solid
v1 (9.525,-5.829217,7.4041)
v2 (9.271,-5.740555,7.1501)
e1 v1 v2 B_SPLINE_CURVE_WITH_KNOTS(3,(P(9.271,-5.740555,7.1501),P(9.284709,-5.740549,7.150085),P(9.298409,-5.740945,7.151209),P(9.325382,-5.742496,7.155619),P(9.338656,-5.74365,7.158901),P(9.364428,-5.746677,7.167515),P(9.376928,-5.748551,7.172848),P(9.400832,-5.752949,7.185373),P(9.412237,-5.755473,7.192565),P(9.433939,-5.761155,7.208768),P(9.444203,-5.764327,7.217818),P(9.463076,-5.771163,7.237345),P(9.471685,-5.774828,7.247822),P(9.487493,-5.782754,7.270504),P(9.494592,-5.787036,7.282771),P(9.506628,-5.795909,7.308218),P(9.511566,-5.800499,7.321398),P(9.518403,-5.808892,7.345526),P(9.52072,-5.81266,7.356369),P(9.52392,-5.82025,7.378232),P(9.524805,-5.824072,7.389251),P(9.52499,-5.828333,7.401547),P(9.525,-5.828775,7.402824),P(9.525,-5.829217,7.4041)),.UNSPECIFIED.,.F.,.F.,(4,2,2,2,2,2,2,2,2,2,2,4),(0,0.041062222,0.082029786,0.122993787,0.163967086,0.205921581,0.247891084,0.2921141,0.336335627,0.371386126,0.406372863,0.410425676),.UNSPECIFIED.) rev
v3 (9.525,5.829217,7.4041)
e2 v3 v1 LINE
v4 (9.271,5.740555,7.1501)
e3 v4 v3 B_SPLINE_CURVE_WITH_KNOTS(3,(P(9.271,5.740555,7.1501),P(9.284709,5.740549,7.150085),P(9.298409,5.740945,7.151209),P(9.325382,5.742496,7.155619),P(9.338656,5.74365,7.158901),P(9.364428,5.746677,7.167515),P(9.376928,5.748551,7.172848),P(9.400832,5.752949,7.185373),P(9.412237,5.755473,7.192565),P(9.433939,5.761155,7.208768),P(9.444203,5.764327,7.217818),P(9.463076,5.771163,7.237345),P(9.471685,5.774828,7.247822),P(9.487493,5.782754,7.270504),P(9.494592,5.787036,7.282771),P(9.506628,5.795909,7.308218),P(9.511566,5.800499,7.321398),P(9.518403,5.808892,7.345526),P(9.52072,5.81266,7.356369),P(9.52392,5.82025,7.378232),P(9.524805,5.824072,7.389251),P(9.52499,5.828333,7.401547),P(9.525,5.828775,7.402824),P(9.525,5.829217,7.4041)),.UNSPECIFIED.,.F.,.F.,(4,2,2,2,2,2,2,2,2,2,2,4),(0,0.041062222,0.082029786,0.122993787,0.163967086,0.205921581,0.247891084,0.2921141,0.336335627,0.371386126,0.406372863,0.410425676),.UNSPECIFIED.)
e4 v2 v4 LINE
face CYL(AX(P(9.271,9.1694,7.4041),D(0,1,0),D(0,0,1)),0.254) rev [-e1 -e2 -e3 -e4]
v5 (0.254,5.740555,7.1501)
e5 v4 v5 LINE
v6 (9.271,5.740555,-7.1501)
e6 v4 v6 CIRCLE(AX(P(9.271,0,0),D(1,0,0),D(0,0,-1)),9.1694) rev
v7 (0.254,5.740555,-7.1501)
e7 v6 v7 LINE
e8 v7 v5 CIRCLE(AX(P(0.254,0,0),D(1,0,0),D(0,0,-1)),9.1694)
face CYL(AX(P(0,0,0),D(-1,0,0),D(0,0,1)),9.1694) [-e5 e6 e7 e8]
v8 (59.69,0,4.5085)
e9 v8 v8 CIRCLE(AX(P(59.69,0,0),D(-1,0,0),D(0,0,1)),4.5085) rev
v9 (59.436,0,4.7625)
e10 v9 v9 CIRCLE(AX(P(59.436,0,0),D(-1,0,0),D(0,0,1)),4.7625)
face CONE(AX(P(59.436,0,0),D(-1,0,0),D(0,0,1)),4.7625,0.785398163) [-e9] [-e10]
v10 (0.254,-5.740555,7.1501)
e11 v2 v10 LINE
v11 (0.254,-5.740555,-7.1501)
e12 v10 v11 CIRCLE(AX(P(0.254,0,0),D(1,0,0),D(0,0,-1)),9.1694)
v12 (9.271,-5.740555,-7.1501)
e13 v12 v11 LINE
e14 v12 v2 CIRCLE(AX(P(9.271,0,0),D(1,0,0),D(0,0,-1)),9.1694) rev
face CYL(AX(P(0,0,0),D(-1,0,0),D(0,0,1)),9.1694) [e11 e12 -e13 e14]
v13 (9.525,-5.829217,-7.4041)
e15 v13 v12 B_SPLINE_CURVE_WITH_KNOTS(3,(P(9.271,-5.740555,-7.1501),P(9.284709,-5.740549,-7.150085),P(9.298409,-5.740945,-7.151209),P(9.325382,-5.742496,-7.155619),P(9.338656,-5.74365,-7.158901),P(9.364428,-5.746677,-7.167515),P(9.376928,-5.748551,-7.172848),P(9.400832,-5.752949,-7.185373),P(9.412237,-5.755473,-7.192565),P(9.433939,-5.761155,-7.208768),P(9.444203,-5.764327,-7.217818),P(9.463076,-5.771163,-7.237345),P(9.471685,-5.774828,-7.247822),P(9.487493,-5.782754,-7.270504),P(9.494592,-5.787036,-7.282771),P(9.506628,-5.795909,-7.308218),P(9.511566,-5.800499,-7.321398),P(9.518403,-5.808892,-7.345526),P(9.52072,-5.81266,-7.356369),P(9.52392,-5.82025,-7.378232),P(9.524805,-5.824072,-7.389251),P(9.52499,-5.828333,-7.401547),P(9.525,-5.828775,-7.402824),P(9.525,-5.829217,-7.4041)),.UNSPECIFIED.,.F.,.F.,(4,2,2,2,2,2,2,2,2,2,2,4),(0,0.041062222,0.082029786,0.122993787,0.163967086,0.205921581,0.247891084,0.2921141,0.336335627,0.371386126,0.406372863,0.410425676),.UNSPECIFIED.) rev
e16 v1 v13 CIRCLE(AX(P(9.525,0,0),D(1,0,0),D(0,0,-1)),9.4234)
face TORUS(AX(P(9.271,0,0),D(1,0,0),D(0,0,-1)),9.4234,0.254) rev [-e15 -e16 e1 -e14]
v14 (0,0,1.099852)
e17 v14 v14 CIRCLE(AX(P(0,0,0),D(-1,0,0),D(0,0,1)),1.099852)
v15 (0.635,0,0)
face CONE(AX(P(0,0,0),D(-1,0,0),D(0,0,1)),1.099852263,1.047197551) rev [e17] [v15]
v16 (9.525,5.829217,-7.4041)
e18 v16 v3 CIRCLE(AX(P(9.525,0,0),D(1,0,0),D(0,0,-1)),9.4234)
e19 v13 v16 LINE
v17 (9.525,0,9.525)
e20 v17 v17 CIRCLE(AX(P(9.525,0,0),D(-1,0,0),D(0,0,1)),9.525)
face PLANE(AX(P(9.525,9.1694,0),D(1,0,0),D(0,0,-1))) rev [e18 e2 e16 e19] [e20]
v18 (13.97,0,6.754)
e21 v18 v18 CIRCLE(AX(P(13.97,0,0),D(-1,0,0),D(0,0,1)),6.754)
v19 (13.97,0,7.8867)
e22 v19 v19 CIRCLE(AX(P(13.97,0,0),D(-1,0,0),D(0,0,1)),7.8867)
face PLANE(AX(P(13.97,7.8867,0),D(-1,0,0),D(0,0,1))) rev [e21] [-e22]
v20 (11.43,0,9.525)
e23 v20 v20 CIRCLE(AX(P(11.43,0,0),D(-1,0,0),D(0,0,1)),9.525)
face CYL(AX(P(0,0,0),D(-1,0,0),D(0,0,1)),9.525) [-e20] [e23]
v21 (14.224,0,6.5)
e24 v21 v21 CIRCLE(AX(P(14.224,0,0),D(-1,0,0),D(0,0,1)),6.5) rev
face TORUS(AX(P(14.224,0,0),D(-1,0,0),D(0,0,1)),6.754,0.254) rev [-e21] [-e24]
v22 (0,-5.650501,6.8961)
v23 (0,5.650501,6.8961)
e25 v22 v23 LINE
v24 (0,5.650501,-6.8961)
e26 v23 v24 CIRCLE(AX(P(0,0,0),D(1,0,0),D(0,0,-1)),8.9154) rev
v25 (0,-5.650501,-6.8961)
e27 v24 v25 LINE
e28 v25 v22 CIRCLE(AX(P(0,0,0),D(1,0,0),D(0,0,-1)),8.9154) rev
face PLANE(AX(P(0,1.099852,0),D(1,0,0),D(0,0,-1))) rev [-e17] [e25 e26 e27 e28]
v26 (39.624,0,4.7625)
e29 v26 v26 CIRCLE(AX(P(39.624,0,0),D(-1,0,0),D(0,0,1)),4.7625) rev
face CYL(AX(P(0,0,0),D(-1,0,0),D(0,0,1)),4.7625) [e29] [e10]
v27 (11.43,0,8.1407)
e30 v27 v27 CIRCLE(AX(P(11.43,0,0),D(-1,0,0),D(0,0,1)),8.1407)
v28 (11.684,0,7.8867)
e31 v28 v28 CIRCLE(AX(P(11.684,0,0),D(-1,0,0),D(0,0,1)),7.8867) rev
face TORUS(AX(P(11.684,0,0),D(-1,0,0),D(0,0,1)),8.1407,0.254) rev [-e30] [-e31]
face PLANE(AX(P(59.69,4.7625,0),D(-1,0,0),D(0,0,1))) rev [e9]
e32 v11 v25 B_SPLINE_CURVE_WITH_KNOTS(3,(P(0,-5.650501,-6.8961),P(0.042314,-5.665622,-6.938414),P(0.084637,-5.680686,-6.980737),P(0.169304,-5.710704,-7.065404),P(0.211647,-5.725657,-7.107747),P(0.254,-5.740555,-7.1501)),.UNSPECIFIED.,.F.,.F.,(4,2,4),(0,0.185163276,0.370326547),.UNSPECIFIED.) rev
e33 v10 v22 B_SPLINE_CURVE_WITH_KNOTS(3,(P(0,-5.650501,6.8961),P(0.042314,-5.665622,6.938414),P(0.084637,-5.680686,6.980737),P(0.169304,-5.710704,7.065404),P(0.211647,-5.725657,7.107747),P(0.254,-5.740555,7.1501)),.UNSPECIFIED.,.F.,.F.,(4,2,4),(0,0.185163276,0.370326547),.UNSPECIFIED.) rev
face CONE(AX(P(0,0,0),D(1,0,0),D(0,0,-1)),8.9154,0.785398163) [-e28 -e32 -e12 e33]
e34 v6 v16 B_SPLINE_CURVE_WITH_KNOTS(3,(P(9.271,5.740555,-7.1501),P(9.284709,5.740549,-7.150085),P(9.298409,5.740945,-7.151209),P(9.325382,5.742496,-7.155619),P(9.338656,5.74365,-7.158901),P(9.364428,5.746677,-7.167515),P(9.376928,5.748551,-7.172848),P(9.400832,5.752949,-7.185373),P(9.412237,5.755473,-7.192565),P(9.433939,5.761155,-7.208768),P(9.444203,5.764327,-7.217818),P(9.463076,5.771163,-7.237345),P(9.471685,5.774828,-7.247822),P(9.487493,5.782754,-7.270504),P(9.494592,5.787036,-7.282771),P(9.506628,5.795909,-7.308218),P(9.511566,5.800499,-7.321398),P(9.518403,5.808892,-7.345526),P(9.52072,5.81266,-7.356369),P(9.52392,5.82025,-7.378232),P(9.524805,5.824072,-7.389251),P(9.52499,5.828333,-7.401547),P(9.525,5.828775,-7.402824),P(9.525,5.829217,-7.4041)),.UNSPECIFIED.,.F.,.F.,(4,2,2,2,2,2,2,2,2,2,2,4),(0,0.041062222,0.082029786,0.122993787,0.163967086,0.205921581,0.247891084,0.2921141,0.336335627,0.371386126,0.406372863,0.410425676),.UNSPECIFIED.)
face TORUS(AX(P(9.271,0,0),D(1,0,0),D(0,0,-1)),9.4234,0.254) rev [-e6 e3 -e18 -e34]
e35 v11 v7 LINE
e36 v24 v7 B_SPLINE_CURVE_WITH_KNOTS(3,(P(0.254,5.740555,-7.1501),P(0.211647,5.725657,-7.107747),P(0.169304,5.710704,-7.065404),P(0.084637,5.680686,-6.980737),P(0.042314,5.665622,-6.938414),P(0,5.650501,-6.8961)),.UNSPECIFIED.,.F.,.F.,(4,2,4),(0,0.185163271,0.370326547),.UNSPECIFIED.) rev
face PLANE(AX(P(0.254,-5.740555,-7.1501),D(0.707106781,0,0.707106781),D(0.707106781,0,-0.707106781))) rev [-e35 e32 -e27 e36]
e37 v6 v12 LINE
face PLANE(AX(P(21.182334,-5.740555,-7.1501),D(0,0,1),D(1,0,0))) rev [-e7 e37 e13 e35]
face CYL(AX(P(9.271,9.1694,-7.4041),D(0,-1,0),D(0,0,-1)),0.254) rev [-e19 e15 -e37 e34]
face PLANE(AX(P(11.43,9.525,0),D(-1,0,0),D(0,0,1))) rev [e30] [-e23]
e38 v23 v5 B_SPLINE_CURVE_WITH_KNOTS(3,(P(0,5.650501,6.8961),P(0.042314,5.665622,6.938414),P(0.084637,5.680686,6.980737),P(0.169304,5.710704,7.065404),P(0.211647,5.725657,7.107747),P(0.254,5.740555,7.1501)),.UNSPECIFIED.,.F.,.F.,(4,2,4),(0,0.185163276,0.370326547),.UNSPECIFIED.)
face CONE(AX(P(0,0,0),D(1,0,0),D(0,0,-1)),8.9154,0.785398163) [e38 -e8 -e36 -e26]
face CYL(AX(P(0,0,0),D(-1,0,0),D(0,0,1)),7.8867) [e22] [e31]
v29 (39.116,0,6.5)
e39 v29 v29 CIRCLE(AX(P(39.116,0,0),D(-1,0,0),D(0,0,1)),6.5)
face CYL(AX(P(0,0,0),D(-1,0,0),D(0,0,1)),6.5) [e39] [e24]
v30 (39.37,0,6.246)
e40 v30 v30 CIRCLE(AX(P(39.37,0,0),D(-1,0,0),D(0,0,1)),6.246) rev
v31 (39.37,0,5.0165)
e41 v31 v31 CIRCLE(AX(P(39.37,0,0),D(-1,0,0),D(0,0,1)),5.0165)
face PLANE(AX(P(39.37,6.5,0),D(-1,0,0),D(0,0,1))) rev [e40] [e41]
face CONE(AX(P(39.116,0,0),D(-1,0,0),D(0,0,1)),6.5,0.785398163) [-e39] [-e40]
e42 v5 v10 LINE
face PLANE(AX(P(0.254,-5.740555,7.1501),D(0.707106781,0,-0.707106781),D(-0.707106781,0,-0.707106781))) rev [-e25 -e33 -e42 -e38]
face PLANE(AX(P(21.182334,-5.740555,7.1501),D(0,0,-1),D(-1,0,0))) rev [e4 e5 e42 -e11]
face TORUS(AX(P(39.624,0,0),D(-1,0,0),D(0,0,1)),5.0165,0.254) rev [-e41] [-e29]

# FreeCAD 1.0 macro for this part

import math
import FreeCAD as App
import Part
import Sketcher

V = App.Vector
Q = App.Units.Quantity


def edges_at(feature, points):
    """Names of the edges that pass closest to the given points."""
    edges = feature.Shape.Edges
    near = lambda p: min(range(len(edges)), key=lambda i: edges[i].distToShape(Part.Vertex(*p))[0])
    return sorted({f"Edge{near(p) + 1}" for p in points})


def add_polygon(sketch, points):
    """Adds a closed chain of lines whose ends are joined by coincident constraints."""
    first, n = sketch.GeometryCount, len(points)
    for a, b in zip(points, points[1:] + points[:1]):
        sketch.addGeometry(Part.LineSegment(App.Vector(*a, 0), App.Vector(*b, 0)), False)
    for i in range(n):
        sketch.addConstraint(Sketcher.Constraint("Coincident", first + i, 2, first + (i + 1) % n, 1))

doc = App.newDocument("Part")
body = doc.addObject("PartDesign::Body", "Body")

sketch1 = doc.addObject("Sketcher::SketchObject", "Sketch")
body.addObject(sketch1)
sketch1.AttachmentSupport = (doc.XY_Plane, [""])
sketch1.MapMode = "FlatFace"
add_polygon(sketch1, [(9.53, 9.17), (0, 9.17), (0, 1.1), (0.64, 0), (59.69, 0), (59.69, 4.76), (39.37, 4.76), (39.37, 6.5), (13.97, 6.5), (13.97, 7.89), (11.43, 7.89), (11.43, 9.53), (9.53, 9.53)])
sketch1.addConstraint([
    Sketcher.Constraint("Horizontal", 0),
    Sketcher.Constraint("Vertical", 1),
    Sketcher.Constraint("Horizontal", 3),
    Sketcher.Constraint("Vertical", 4),
    Sketcher.Constraint("Horizontal", 5),
    Sketcher.Constraint("Vertical", 6),
    Sketcher.Constraint("Horizontal", 7),
    Sketcher.Constraint("Vertical", 8),
    Sketcher.Constraint("Horizontal", 9),
    Sketcher.Constraint("Vertical", 10),
    Sketcher.Constraint("Horizontal", 11),
    Sketcher.Constraint("Vertical", 12),
    Sketcher.Constraint("PointOnObject", 0, 2, -2),
    Sketcher.Constraint("PointOnObject", 2, 2, -1),
    Sketcher.Constraint("DistanceX", 7, 2, 7, 1, Q("1 in")),
    Sketcher.Constraint("DistanceX", 5, 2, 5, 1, Q("0.8 in")),
    Sketcher.Constraint("DistanceX", 9, 2, 9, 1, Q("0.1 in")),
    Sketcher.Constraint("Angle", 2, Q("-60 deg")),
    Sketcher.Constraint("Distance", 2, Q("0.05 in")),
    Sketcher.Constraint("DistanceX", 0, 2, 0, 1, Q("0.375 in")),
    Sketcher.Constraint("DistanceX", 3, 1, 3, 2, Q("2.325 in")),
    Sketcher.Constraint("DistanceY", 4, 1, 4, 2, Q("0.1875 in")),
    Sketcher.Constraint("DistanceY", 12, 2, 12, 1, Q("0.014 in")),
    Sketcher.Constraint("DistanceY", 10, 1, 10, 2, Q("0.0645 in")),
    Sketcher.Constraint("DistanceY", -1, 1, 0, 2, Q("0.361 in")),
    Sketcher.Constraint("DistanceY", 6, 1, 6, 2, 1.7375),
])
revolution = doc.addObject("PartDesign::Revolution", "Revolution")
body.addObject(revolution)
revolution.Profile = sketch1
revolution.ReferenceAxis = (sketch1, ["H_Axis"])
revolution.Angle = 360

sketch2 = doc.addObject("Sketcher::SketchObject", "Sketch001")
body.addObject(sketch2)
sketch2.AttachmentSupport = (doc.YZ_Plane, [""])
sketch2.MapMode = "FlatFace"
sketch2.addGeometry([
    Part.LineSegment(V(-6, -7, 0), V(6, -7, 0)),
    Part.ArcOfCircle(Part.Circle(V(0, 0, 0), V(0, 0, 1), 9), math.radians(-129), math.radians(-51)),
    Part.LineSegment(V(6, 7, 0), V(-6, 7, 0)),
    Part.ArcOfCircle(Part.Circle(V(0, 0, 0), V(0, 0, 1), 9), math.radians(51), math.radians(129)),
], False)
sketch2.addConstraint([
    Sketcher.Constraint("Coincident", 0, 1, 1, 1),
    Sketcher.Constraint("Coincident", 1, 2, 0, 2),
    Sketcher.Constraint("Coincident", 2, 1, 3, 1),
    Sketcher.Constraint("Coincident", 3, 2, 2, 2),
    Sketcher.Constraint("Horizontal", 0),
    Sketcher.Constraint("Horizontal", 2),
    Sketcher.Constraint("Coincident", 1, 3, -1, 1),
    Sketcher.Constraint("Coincident", 3, 3, -1, 1),
    Sketcher.Constraint("Equal", 1, 3),
    Sketcher.Constraint("Vertical", 1, 2, 2, 1),
    Sketcher.Constraint("Radius", 1, Q("0.361 in")),
    Sketcher.Constraint("DistanceY", 1, 2, 2, 1, Q("0.563 in")),
])
pocket1 = doc.addObject("PartDesign::Pocket", "Pocket")
body.addObject(pocket1)
pocket1.Profile = sketch2
pocket1.Length = Q("0.375 in")
pocket1.Reversed = True
doc.recompute()

chamfer = doc.addObject("PartDesign::Chamfer", "Chamfer")
body.addObject(chamfer)
chamfer.Base = (pocket1, edges_at(pocket1, [
    (0, 9.169, 0),
    (39.37, -6.5, 0),
    (0, 0, 7.15),
    (0, -9.169, 0),
    (0, 0, -7.15),
    (59.69, -4.763, 0),
]))
chamfer.Size = Q("0.01 in")
doc.recompute()

fillet = doc.addObject("PartDesign::Fillet", "Fillet")
body.addObject(fillet)
fillet.Base = (chamfer, edges_at(chamfer, [
    (9.525, 9.169, 0),
    (11.43, -7.887, 0),
    (13.97, -6.5, 0),
    (9.525, 0, 7.15),
    (9.525, -9.169, 0),
    (9.525, 0, -7.15),
    (39.37, -4.763, 0),
]))
fillet.Radius = Q("0.01 in")

doc.recompute()
